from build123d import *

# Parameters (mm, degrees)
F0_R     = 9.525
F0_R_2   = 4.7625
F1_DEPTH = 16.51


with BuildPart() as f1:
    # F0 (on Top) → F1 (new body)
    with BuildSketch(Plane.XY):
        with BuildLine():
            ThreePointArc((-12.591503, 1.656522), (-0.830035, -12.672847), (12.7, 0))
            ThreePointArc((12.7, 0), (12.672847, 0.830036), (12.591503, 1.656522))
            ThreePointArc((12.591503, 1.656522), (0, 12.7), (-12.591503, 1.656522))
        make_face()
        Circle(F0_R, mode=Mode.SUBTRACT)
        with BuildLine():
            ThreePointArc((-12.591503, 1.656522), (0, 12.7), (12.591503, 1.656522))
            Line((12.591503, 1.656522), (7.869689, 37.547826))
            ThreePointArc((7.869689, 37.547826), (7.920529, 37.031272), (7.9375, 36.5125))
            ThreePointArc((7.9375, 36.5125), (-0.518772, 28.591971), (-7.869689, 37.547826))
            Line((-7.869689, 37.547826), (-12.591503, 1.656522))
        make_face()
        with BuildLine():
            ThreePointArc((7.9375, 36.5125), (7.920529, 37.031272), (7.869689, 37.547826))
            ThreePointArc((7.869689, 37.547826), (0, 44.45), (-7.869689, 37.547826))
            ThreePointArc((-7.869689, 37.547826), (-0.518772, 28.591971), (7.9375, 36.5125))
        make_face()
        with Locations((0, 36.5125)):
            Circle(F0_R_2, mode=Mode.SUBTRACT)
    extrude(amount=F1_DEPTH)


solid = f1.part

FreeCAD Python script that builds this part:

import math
import FreeCAD as App
import Part
import Sketcher
from FreeCAD import Vector
Q = App.Units.Quantity

doc = App.newDocument("Part")
body = doc.addObject("PartDesign::Body", "Body")

sketch1 = body.newObject("Sketcher::SketchObject", "Sketch")
sketch1.AttachmentSupport = (doc.getObject("XY_Plane"), [""])
sketch1.MapMode = "FlatFace"
sketch1.addGeometry([
    Part.ArcOfCircle(Part.Circle(Vector(0, 0, 0), Vector(0, 0, 1), 12.7), math.radians(172.505281), math.radians(360)),
    Part.ArcOfCircle(Part.Circle(Vector(0.00008, 0.000009, 0), Vector(0, 0, 1), 12.69992), math.radians(-0.000041), math.radians(7.494725)),
    Part.LineSegment(Vector(12.591503, 1.656522, 0), Vector(7.869689, 37.547826, 0)),
    Part.ArcOfCircle(Part.Circle(Vector(0, 36.5125, 0), Vector(0, 0, 1), 7.9375), math.radians(7.494716), math.radians(172.505284)),
    Part.LineSegment(Vector(-7.869689, 37.547826, 0), Vector(-12.591503, 1.656522, 0)),
    Part.Circle(Vector(0, 0, 0), Vector(0, 0, 1), 9.525),
    Part.Circle(Vector(0, 36.5125, 0), Vector(0, 0, 1), 4.7625),
], False)
sketch1.addConstraint([
    Sketcher.Constraint("Coincident", 0, 2, 1, 1),
    Sketcher.Constraint("Coincident", 1, 2, 2, 1),
    Sketcher.Constraint("Coincident", 2, 2, 3, 1),
    Sketcher.Constraint("Coincident", 3, 2, 4, 1),
    Sketcher.Constraint("Coincident", 4, 2, 0, 1),
    Sketcher.Constraint("Coincident", 0, 3, -1, 1),
    Sketcher.Constraint("Coincident", 5, 3, -1, 1),
    Sketcher.Constraint("Coincident", 6, 3, 3, 3),
    Sketcher.Constraint("PointOnObject", 3, 3, -2),
    Sketcher.Constraint("PointOnObject", 0, 2, -1),
    Sketcher.Constraint("Radius", 0, Q("0.5 in")),
    Sketcher.Constraint("Diameter", 5, Q("0.75 in")),
    Sketcher.Constraint("Diameter", 6, Q("0.375 in")),
    Sketcher.Constraint("Radius", 3, Q("0.3125 in")),
    Sketcher.Constraint("DistanceY", -1, 1, 3, 3, Q("1.4375 in")),
    Sketcher.Constraint("Radius", 1, Q("12.69992 mm")),
    Sketcher.Constraint("Distance", 2, Q("36.200569 mm")),
    Sketcher.Constraint("Distance", 4, Q("36.200569 mm")),
    Sketcher.Constraint("DistanceX", -1, 1, 2, 2, Q("7.869689 mm")),
    Sketcher.Constraint("DistanceX", 3, 2, -1, 1, Q("7.869689 mm")),
    Sketcher.Constraint("DistanceY", 1, 3, 3, 3, Q("36.512491 mm")),
])
pad1 = body.newObject("PartDesign::Pad", "Pad")
pad1.Profile = sketch1
pad1.Length = Q("0.65 in")

doc.recompute()
